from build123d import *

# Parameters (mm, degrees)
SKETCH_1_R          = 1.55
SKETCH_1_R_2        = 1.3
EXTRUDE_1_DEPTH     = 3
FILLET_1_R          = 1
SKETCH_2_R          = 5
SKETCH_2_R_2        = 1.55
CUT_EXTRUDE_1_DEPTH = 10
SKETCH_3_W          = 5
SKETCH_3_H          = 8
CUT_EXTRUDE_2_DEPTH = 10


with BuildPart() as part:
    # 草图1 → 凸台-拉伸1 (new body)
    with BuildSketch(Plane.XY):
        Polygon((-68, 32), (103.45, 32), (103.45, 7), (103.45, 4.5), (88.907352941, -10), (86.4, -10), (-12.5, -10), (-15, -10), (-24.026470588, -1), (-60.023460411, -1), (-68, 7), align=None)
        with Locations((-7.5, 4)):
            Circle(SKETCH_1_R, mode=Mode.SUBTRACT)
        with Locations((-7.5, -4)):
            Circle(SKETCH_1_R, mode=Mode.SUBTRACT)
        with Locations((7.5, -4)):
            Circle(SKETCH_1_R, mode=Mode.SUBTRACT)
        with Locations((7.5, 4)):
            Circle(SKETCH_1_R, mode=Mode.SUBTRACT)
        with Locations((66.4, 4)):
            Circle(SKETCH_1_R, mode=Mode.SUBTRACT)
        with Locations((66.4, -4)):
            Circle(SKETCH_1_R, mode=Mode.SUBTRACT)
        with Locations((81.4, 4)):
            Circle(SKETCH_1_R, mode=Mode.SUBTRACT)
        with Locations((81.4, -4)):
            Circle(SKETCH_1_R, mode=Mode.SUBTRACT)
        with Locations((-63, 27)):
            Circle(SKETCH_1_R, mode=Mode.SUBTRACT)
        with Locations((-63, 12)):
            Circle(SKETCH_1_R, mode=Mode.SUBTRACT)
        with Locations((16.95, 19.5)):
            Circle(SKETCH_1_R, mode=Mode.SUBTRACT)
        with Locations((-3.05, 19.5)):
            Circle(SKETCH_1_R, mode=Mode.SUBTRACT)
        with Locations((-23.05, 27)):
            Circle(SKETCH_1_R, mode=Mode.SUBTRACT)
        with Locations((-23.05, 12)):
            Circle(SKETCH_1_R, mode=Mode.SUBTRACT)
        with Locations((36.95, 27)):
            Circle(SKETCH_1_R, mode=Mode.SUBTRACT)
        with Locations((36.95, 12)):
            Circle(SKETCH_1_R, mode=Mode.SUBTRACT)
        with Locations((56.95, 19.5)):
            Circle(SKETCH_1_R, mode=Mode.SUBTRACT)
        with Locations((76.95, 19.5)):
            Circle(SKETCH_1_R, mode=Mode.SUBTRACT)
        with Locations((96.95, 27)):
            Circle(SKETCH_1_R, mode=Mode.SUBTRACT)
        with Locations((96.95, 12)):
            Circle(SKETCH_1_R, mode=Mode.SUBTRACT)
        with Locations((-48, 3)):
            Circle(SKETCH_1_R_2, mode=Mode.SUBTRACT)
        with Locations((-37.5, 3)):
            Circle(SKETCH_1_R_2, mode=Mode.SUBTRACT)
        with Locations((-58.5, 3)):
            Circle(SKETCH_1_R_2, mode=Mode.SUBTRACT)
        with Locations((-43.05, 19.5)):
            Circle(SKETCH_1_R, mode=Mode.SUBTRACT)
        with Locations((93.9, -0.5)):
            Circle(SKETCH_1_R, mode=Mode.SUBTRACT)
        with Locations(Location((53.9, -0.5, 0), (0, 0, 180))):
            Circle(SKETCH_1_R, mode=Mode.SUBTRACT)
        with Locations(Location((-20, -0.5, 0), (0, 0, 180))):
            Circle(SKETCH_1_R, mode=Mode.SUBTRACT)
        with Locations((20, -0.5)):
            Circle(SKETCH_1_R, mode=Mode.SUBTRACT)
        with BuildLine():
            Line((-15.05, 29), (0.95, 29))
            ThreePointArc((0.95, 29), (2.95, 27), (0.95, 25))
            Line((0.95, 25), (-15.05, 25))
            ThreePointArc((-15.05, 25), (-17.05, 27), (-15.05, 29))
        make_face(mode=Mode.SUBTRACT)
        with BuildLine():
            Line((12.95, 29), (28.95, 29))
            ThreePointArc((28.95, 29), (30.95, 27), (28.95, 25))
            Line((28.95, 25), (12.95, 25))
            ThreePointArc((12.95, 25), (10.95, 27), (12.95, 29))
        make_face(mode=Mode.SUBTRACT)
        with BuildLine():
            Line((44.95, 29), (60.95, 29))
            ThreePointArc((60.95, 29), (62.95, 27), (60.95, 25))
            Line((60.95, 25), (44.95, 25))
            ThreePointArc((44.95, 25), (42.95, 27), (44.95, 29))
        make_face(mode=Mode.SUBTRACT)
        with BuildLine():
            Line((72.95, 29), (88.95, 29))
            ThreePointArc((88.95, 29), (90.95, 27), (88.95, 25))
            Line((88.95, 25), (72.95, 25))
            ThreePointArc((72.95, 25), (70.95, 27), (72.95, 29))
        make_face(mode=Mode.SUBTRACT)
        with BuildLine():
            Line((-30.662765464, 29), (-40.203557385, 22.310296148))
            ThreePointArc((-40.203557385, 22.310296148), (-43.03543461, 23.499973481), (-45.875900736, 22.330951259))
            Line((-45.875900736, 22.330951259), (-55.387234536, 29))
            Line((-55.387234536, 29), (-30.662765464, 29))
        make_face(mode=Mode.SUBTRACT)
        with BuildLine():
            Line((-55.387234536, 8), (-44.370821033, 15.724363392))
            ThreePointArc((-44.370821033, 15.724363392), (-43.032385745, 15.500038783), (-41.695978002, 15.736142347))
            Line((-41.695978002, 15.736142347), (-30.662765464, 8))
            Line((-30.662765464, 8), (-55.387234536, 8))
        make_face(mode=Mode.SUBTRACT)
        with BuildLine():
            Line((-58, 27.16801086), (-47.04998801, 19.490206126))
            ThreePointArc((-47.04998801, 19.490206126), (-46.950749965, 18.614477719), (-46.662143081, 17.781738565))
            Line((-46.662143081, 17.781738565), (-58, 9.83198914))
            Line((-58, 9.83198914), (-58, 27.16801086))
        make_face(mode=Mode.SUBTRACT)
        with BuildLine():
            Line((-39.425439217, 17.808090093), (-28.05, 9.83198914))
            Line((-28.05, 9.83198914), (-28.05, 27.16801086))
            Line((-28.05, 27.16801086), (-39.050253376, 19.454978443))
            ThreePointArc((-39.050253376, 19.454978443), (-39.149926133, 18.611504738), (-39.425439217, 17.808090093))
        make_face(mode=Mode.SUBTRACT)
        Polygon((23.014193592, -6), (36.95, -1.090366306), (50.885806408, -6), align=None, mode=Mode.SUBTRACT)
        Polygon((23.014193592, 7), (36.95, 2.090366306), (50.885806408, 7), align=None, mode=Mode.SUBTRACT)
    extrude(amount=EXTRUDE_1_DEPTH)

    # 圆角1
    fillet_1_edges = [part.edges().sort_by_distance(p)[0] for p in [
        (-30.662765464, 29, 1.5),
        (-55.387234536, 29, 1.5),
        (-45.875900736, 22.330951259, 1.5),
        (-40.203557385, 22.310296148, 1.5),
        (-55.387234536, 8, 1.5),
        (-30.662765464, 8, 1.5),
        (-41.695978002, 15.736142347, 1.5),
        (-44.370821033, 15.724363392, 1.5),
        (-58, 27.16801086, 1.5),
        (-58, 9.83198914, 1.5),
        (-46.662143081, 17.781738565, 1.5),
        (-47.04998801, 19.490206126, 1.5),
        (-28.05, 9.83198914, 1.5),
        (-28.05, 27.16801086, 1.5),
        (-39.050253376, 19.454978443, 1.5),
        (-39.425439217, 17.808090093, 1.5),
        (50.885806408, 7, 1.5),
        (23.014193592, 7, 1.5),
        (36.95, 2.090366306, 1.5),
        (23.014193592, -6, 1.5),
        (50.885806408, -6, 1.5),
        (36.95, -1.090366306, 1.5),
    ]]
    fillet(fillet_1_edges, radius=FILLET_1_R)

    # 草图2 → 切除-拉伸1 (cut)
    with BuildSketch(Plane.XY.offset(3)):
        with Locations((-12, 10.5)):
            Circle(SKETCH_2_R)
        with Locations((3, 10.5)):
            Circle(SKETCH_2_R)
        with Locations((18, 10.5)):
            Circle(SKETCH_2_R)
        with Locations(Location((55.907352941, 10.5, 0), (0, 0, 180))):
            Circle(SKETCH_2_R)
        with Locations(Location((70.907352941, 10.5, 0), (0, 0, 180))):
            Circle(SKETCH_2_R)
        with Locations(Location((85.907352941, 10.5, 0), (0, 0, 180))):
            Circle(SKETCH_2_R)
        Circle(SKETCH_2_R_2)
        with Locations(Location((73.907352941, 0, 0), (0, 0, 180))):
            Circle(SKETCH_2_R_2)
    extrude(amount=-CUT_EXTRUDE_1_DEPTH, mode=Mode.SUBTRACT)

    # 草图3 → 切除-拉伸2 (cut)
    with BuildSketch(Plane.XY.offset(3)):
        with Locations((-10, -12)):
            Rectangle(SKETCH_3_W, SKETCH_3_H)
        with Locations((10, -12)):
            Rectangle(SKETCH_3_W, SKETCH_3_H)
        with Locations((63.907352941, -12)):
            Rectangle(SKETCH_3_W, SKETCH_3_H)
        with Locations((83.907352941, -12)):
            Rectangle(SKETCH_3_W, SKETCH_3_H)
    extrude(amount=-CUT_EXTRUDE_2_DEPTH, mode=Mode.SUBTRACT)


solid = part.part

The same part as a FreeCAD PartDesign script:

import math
import FreeCAD as App
import Part
import Sketcher

V = App.Vector
Q = App.Units.Quantity


def edges_at(feature, points):
    """Names of the edges that pass closest to the given points."""
    edges = feature.Shape.Edges
    near = lambda p: min(range(len(edges)), key=lambda i: edges[i].distToShape(Part.Vertex(*p))[0])
    return sorted({f"Edge{near(p) + 1}" for p in points})


def add_polygon(sketch, points):
    """Adds a closed chain of lines whose ends are joined by coincident constraints."""
    first, n = sketch.GeometryCount, len(points)
    for a, b in zip(points, points[1:] + points[:1]):
        sketch.addGeometry(Part.LineSegment(App.Vector(*a, 0), App.Vector(*b, 0)), False)
    for i in range(n):
        sketch.addConstraint(Sketcher.Constraint("Coincident", first + i, 2, first + (i + 1) % n, 1))

doc = App.newDocument("Part")
params = doc.addObject("Spreadsheet::Sheet", "Params")
for row, (alias, value) in enumerate([
    ("sketch1_radius", "2 mm"),
    ("sketch1_radius2", "4 mm"),
    ("sketch1_diameter", "3.1 mm"),
    ("sketch1_diameter2", "2.6 mm"),
    ("sketch1_width", "16 mm"),
    ("pad1_length", "3 mm"),
    ("fillet_radius", "1 mm"),
    ("sketch2_diameter", "10 mm"),
    ("sketch2_diameter2", "3.1 mm"),
    ("pocket1_length", "10 mm"),
    ("sketch3_width", "5 mm"),
    ("sketch3_height", "8 mm"),
    ("pocket2_length", "10 mm"),
], start=1):
    params.set(f"A{row}", alias)
    params.set(f"B{row}", "=" + value)
    params.setAlias(f"B{row}", alias)

body = doc.addObject("PartDesign::Body", "Body")

sketch1 = doc.addObject("Sketcher::SketchObject", "Sketch")
body.addObject(sketch1)
sketch1.AttachmentSupport = (doc.XY_Plane, [""])
sketch1.MapMode = "FlatFace"
add_polygon(sketch1, [(103.5, 32), (-68, 32), (-68, 7), (-60, -1), (-24, -1), (-15, -10), (88.9, -10), (103.5, 4.5)])
sketch1.addGeometry(Part.Circle(V(81.4, -4, 0), V(0, 0, 1), 1.6), False)
sketch1.addGeometry(Part.Circle(V(66.4, -4, 0), V(0, 0, 1), 1.6), False)
sketch1.addGeometry(Part.Circle(V(93.9, -0.5, 0), V(0, 0, 1), 1.6), False)
add_polygon(sketch1, [(23, -6), (37, -1.1), (50.9, -6)])
sketch1.addGeometry(Part.Circle(V(53.9, -0.5, 0), V(0, 0, 1), 1.6), False)
sketch1.addGeometry(Part.Circle(V(20, -0.5, 0), V(0, 0, 1), 1.6), False)
sketch1.addGeometry(Part.Circle(V(81.4, 4, 0), V(0, 0, 1), 1.6), False)
sketch1.addGeometry(Part.Circle(V(66.4, 4, 0), V(0, 0, 1), 1.6), False)
add_polygon(sketch1, [(23, 7), (50.9, 7), (37, 2.1)])
sketch1.addGeometry(Part.Circle(V(7.5, -4, 0), V(0, 0, 1), 1.6), False)
sketch1.addGeometry(Part.Circle(V(-7.5, -4, 0), V(0, 0, 1), 1.6), False)
sketch1.addGeometry(Part.Circle(V(-20, -0.5, 0), V(0, 0, 1), 1.6), False)
sketch1.addGeometry(Part.Circle(V(7.5, 4, 0), V(0, 0, 1), 1.6), False)
sketch1.addGeometry(Part.Circle(V(-7.5, 4, 0), V(0, 0, 1), 1.6), False)
sketch1.addGeometry(Part.Circle(V(-37.5, 3, 0), V(0, 0, 1), 1.3), False)
sketch1.addGeometry(Part.Circle(V(-48, 3, 0), V(0, 0, 1), 1.3), False)
sketch1.addGeometry(Part.Circle(V(-58.5, 3, 0), V(0, 0, 1), 1.3), False)
sketch1.addGeometry(Part.Circle(V(97, 12, 0), V(0, 0, 1), 1.6), False)
sketch1.addGeometry(Part.Circle(V(77, 19.5, 0), V(0, 0, 1), 1.6), False)
sketch1.addGeometry(Part.Circle(V(37, 12, 0), V(0, 0, 1), 1.6), False)
sketch1.addGeometry(Part.Circle(V(57, 19.5, 0), V(0, 0, 1), 1.6), False)
sketch1.addGeometry(Part.Circle(V(97, 27, 0), V(0, 0, 1), 1.6), False)
sketch1.addGeometry(Part.LineSegment(V(73, 29, 0), V(89, 29, 0)), False)
sketch1.addGeometry(Part.ArcOfCircle(Part.Circle(V(89, 27, 0), V(0, 0, 1), 2), math.radians(-90), math.radians(90)), False)
sketch1.addGeometry(Part.LineSegment(V(89, 25, 0), V(73, 25, 0)), False)
sketch1.addGeometry(Part.ArcOfCircle(Part.Circle(V(73, 27, 0), V(0, 0, 1), 2), math.radians(90), math.radians(270)), False)
sketch1.addGeometry(Part.LineSegment(V(45, 29, 0), V(61, 29, 0)), False)
sketch1.addGeometry(Part.ArcOfCircle(Part.Circle(V(61, 27, 0), V(0, 0, 1), 2), math.radians(-90), math.radians(90)), False)
sketch1.addGeometry(Part.LineSegment(V(61, 25, 0), V(45, 25, 0)), False)
sketch1.addGeometry(Part.ArcOfCircle(Part.Circle(V(45, 27, 0), V(0, 0, 1), 2), math.radians(90), math.radians(270)), False)
sketch1.addGeometry(Part.Circle(V(37, 27, 0), V(0, 0, 1), 1.6), False)
sketch1.addGeometry(Part.LineSegment(V(12.9, 29, 0), V(28.9, 29, 0)), False)
sketch1.addGeometry(Part.ArcOfCircle(Part.Circle(V(28.9, 27, 0), V(0, 0, 1), 2), math.radians(-90), math.radians(90)), False)
sketch1.addGeometry(Part.LineSegment(V(28.9, 25, 0), V(12.9, 25, 0)), False)
sketch1.addGeometry(Part.ArcOfCircle(Part.Circle(V(12.9, 27, 0), V(0, 0, 1), 2), math.radians(90), math.radians(270)), False)
sketch1.addGeometry(Part.Circle(V(-23.1, 12, 0), V(0, 0, 1), 1.6), False)
sketch1.addGeometry(Part.Circle(V(16.9, 19.5, 0), V(0, 0, 1), 1.6), False)
sketch1.addGeometry(Part.Circle(V(-3, 19.5, 0), V(0, 0, 1), 1.6), False)
sketch1.addGeometry(Part.LineSegment(V(-55.4, 8, 0), V(-44.4, 15.7, 0)), False)
sketch1.addGeometry(Part.ArcOfCircle(Part.Circle(V(-43, 19.5, 0), V(0, 0, 1), 4), math.radians(-109), math.radians(-70)), False)
sketch1.addGeometry(Part.LineSegment(V(-41.7, 15.7, 0), V(-30.7, 8, 0)), False)
sketch1.addGeometry(Part.LineSegment(V(-30.7, 8, 0), V(-55.4, 8, 0)), False)
sketch1.addGeometry(Part.Circle(V(-63, 12, 0), V(0, 0, 1), 1.6), False)
sketch1.addGeometry(Part.ArcOfCircle(Part.Circle(V(-43.1, 19.5, 0), V(0, 0, 1), 4), math.radians(-25), math.radians(-1)), False)
sketch1.addGeometry(Part.LineSegment(V(-39.1, 19.5, 0), V(-28.1, 27.2, 0)), False)
sketch1.addGeometry(Part.LineSegment(V(-28.1, 27.2, 0), V(-28.1, 9.8, 0)), False)
sketch1.addGeometry(Part.LineSegment(V(-28.1, 9.8, 0), V(-39.4, 17.8, 0)), False)
sketch1.addGeometry(Part.Circle(V(-43, 19.5, 0), V(0, 0, 1), 1.6), False)
sketch1.addGeometry(Part.LineSegment(V(-58, 27.2, 0), V(-47, 19.5, 0)), False)
sketch1.addGeometry(Part.ArcOfCircle(Part.Circle(V(-43.1, 19.5, 0), V(0, 0, 1), 4), math.radians(-180), math.radians(-155)), False)
sketch1.addGeometry(Part.LineSegment(V(-46.7, 17.8, 0), V(-58, 9.8, 0)), False)
sketch1.addGeometry(Part.LineSegment(V(-58, 9.8, 0), V(-58, 27.2, 0)), False)
sketch1.addGeometry(Part.LineSegment(V(-15.1, 29, 0), V(0.9, 29, 0)), False)
sketch1.addGeometry(Part.ArcOfCircle(Part.Circle(V(0.9, 27, 0), V(0, 0, 1), 2), math.radians(-90), math.radians(90)), False)
sketch1.addGeometry(Part.LineSegment(V(0.9, 25, 0), V(-15.1, 25, 0)), False)
sketch1.addGeometry(Part.ArcOfCircle(Part.Circle(V(-15.1, 27, 0), V(0, 0, 1), 2), math.radians(90), math.radians(270)), False)
sketch1.addGeometry(Part.Circle(V(-23.1, 27, 0), V(0, 0, 1), 1.6), False)
sketch1.addGeometry(Part.LineSegment(V(-30.7, 29, 0), V(-40.2, 22.3, 0)), False)
sketch1.addGeometry(Part.ArcOfCircle(Part.Circle(V(-43, 19.5, 0), V(0, 0, 1), 4), math.radians(45), math.radians(135)), False)
sketch1.addGeometry(Part.LineSegment(V(-45.9, 22.3, 0), V(-55.4, 29, 0)), False)
sketch1.addGeometry(Part.LineSegment(V(-55.4, 29, 0), V(-30.7, 29, 0)), False)
sketch1.addGeometry(Part.Circle(V(-63, 27, 0), V(0, 0, 1), 1.6), False)
sketch1.addConstraint(Sketcher.Constraint("Tangent", 34, 2, 35, 2))
sketch1.addConstraint(Sketcher.Constraint("Tangent", 35, 1, 36, 1))
sketch1.addConstraint(Sketcher.Constraint("Tangent", 36, 2, 37, 2))
sketch1.addConstraint(Sketcher.Constraint("Tangent", 37, 1, 34, 1))
sketch1.addConstraint(Sketcher.Constraint("Tangent", 38, 2, 39, 2))
sketch1.addConstraint(Sketcher.Constraint("Tangent", 39, 1, 40, 1))
sketch1.addConstraint(Sketcher.Constraint("Tangent", 40, 2, 41, 2))
sketch1.addConstraint(Sketcher.Constraint("Tangent", 41, 1, 38, 1))
sketch1.addConstraint(Sketcher.Constraint("Tangent", 43, 2, 44, 2))
sketch1.addConstraint(Sketcher.Constraint("Tangent", 44, 1, 45, 1))
sketch1.addConstraint(Sketcher.Constraint("Tangent", 45, 2, 46, 2))
sketch1.addConstraint(Sketcher.Constraint("Tangent", 46, 1, 43, 1))
sketch1.addConstraint(Sketcher.Constraint("Coincident", 50, 2, 51, 1))
sketch1.addConstraint(Sketcher.Constraint("Coincident", 51, 2, 52, 1))
sketch1.addConstraint(Sketcher.Constraint("Coincident", 52, 2, 53, 1))
sketch1.addConstraint(Sketcher.Constraint("Coincident", 53, 2, 50, 1))
sketch1.addConstraint(Sketcher.Constraint("Coincident", 55, 2, 56, 1))
sketch1.addConstraint(Sketcher.Constraint("Coincident", 56, 2, 57, 1))
sketch1.addConstraint(Sketcher.Constraint("Coincident", 57, 2, 58, 1))
sketch1.addConstraint(Sketcher.Constraint("Coincident", 58, 2, 55, 1))
sketch1.addConstraint(Sketcher.Constraint("Coincident", 60, 2, 61, 1))
sketch1.addConstraint(Sketcher.Constraint("Coincident", 61, 2, 62, 1))
sketch1.addConstraint(Sketcher.Constraint("Coincident", 62, 2, 63, 1))
sketch1.addConstraint(Sketcher.Constraint("Coincident", 63, 2, 60, 1))
sketch1.addConstraint(Sketcher.Constraint("Tangent", 64, 2, 65, 2))
sketch1.addConstraint(Sketcher.Constraint("Tangent", 65, 1, 66, 1))
sketch1.addConstraint(Sketcher.Constraint("Tangent", 66, 2, 67, 2))
sketch1.addConstraint(Sketcher.Constraint("Tangent", 67, 1, 64, 1))
sketch1.addConstraint(Sketcher.Constraint("Coincident", 69, 2, 70, 1))
sketch1.addConstraint(Sketcher.Constraint("Coincident", 70, 2, 71, 1))
sketch1.addConstraint(Sketcher.Constraint("Coincident", 71, 2, 72, 1))
sketch1.addConstraint(Sketcher.Constraint("Coincident", 72, 2, 69, 1))
sketch1.addConstraint(Sketcher.Constraint("Horizontal", 0))
sketch1.addConstraint(Sketcher.Constraint("Vertical", 1))
sketch1.addConstraint(Sketcher.Constraint("Horizontal", 3))
sketch1.addConstraint(Sketcher.Constraint("Horizontal", 5))
sketch1.addConstraint(Sketcher.Constraint("Vertical", 7))
sketch1.addConstraint(Sketcher.Constraint("Horizontal", 13))
sketch1.addConstraint(Sketcher.Constraint("Horizontal", 18))
sketch1.addConstraint(Sketcher.Constraint("Horizontal", 34))
sketch1.addConstraint(Sketcher.Constraint("Horizontal", 36))
sketch1.addConstraint(Sketcher.Constraint("Horizontal", 38))
sketch1.addConstraint(Sketcher.Constraint("Horizontal", 40))
sketch1.addConstraint(Sketcher.Constraint("Horizontal", 43))
sketch1.addConstraint(Sketcher.Constraint("Horizontal", 45))
sketch1.addConstraint(Sketcher.Constraint("Horizontal", 53))
sketch1.addConstraint(Sketcher.Constraint("Vertical", 57))
sketch1.addConstraint(Sketcher.Constraint("Vertical", 63))
sketch1.addConstraint(Sketcher.Constraint("Horizontal", 64))
sketch1.addConstraint(Sketcher.Constraint("Horizontal", 66))
sketch1.addConstraint(Sketcher.Constraint("Horizontal", 72))
sketch1.addConstraint(Sketcher.Constraint("Coincident", 55, 3, 51, 3))
sketch1.addConstraint(Sketcher.Constraint("Coincident", 59, 3, 51, 3))
sketch1.addConstraint(Sketcher.Constraint("Coincident", 61, 3, 51, 3))
sketch1.addConstraint(Sketcher.Constraint("Coincident", 70, 3, 51, 3))
sketch1.addConstraint(Sketcher.Constraint("Equal", 8, 9))
sketch1.addConstraint(Sketcher.Constraint("Equal", 9, 10))
sketch1.addConstraint(Sketcher.Constraint("Equal", 10, 14))
sketch1.addConstraint(Sketcher.Constraint("Equal", 14, 15))
sketch1.addConstraint(Sketcher.Constraint("Equal", 15, 16))
sketch1.addConstraint(Sketcher.Constraint("Equal", 16, 17))
sketch1.addConstraint(Sketcher.Constraint("Equal", 17, 21))
sketch1.addConstraint(Sketcher.Constraint("Equal", 21, 22))
sketch1.addConstraint(Sketcher.Constraint("Equal", 22, 23))
sketch1.addConstraint(Sketcher.Constraint("Equal", 23, 24))
sketch1.addConstraint(Sketcher.Constraint("Equal", 24, 25))
sketch1.addConstraint(Sketcher.Constraint("Equal", 26, 27))
sketch1.addConstraint(Sketcher.Constraint("Equal", 27, 28))
sketch1.addConstraint(Sketcher.Constraint("Equal", 25, 29))
sketch1.addConstraint(Sketcher.Constraint("Equal", 29, 30))
sketch1.addConstraint(Sketcher.Constraint("Equal", 30, 31))
sketch1.addConstraint(Sketcher.Constraint("Equal", 31, 32))
sketch1.addConstraint(Sketcher.Constraint("Equal", 32, 33))
sketch1.addConstraint(Sketcher.Constraint("Equal", 37, 39))
sketch1.addConstraint(Sketcher.Constraint("Equal", 33, 42))
sketch1.addConstraint(Sketcher.Constraint("Equal", 41, 44))
sketch1.addConstraint(Sketcher.Constraint("Equal", 42, 47))
sketch1.addConstraint(Sketcher.Constraint("Equal", 47, 48))
sketch1.addConstraint(Sketcher.Constraint("Equal", 48, 49))
sketch1.addConstraint(Sketcher.Constraint("Equal", 49, 54))
sketch1.addConstraint(Sketcher.Constraint("Equal", 51, 55))
sketch1.addConstraint(Sketcher.Constraint("Equal", 54, 59))
sketch1.addConstraint(Sketcher.Constraint("Equal", 55, 61))
sketch1.addConstraint(Sketcher.Constraint("Equal", 46, 65))
sketch1.addConstraint(Sketcher.Constraint("Equal", 59, 68))
sketch1.addConstraint(Sketcher.Constraint("Equal", 61, 70))
sketch1.addConstraint(Sketcher.Constraint("Equal", 68, 73))
sketch1.addConstraint(Sketcher.Constraint("Symmetric", 22, 3, 24, 3, -1, 1))
sketch1.addConstraint(Sketcher.Constraint("Symmetric", 21, 3, 25, 3, -1, 1))
sketch1.addConstraint(Sketcher.Constraint("Symmetric", 21, 3, 22, 3, -2))
sketch1.addConstraint(Sketcher.Constraint("Symmetric", 15, 3, 23, 3, -2))
sketch1.addConstraint(Sketcher.Constraint("Symmetric", 8, 3, 16, 3, -1))
sketch1.addConstraint(Sketcher.Constraint("Symmetric", 9, 3, 17, 3, -1))
sketch1.addConstraint(Sketcher.Constraint("Perpendicular", 2, 6))
sketch1.addConstraint(Sketcher.Constraint("Parallel", 11, 19))
sketch1.addConstraint(Sketcher.Constraint("Parallel", 12, 20))
sketch1.addConstraint(Sketcher.Constraint("Parallel", 50, 56))
sketch1.addConstraint(Sketcher.Constraint("Parallel", 52, 58))
sketch1.addConstraint(Sketcher.Constraint("Parallel", 58, 60))
sketch1.addConstraint(Sketcher.Constraint("Parallel", 56, 62))
sketch1.addConstraint(Sketcher.Constraint("Parallel", 62, 69))
sketch1.addConstraint(Sketcher.Constraint("Parallel", 60, 71))
sketch1.addConstraint(Sketcher.Constraint("Horizontal", 8, 3, 9, 3))
sketch1.addConstraint(Sketcher.Constraint("Horizontal", 10, 3, 14, 3))
sketch1.addConstraint(Sketcher.Constraint("Horizontal", 14, 3, 15, 3))
sketch1.addConstraint(Sketcher.Constraint("Horizontal", 9, 3, 21, 3))
sketch1.addConstraint(Sketcher.Constraint("Horizontal", 26, 3, 27, 3))
sketch1.addConstraint(Sketcher.Constraint("Horizontal", 27, 3, 28, 3))
sketch1.addConstraint(Sketcher.Constraint("Horizontal", 29, 3, 31, 3))
sketch1.addConstraint(Sketcher.Constraint("Horizontal", 30, 3, 32, 3))
sketch1.addConstraint(Sketcher.Constraint("Horizontal", 33, 3, 35, 3))
sketch1.addConstraint(Sketcher.Constraint("Horizontal", 37, 3, 39, 3))
sketch1.addConstraint(Sketcher.Constraint("Horizontal", 41, 3, 42, 3))
sketch1.addConstraint(Sketcher.Constraint("Horizontal", 42, 3, 44, 3))
sketch1.addConstraint(Sketcher.Constraint("Horizontal", 31, 3, 47, 3))
sketch1.addConstraint(Sketcher.Constraint("Horizontal", 32, 3, 48, 3))
sketch1.addConstraint(Sketcher.Constraint("Horizontal", 48, 3, 49, 3))
sketch1.addConstraint(Sketcher.Constraint("Horizontal", 49, 3, 51, 3))
sketch1.addConstraint(Sketcher.Constraint("Horizontal", 47, 3, 54, 3))
sketch1.addConstraint(Sketcher.Constraint("Horizontal", 46, 3, 65, 3))
sketch1.addConstraint(Sketcher.Constraint("Horizontal", 67, 3, 68, 3))
sketch1.addConstraint(Sketcher.Constraint("Horizontal", 68, 3, 73, 3))
sketch1.addConstraint(Sketcher.Constraint("Horizontal", 1, 2, 18, 2))
sketch1.addConstraint(Sketcher.Constraint("Horizontal", 57, 2, 62, 2))
sketch1.addConstraint(Sketcher.Constraint("Horizontal", 56, 2, 63, 2))
sketch1.addConstraint(Sketcher.Constraint("Horizontal", 67, 1, 71, 2))
sketch1.addConstraint(Sketcher.Constraint("Vertical", 29, 3, 33, 3))
sketch1.addConstraint(Sketcher.Constraint("Vertical", 31, 3, 42, 3))
sketch1.addConstraint(Sketcher.Constraint("Vertical", 47, 3, 68, 3))
sketch1.addConstraint(Sketcher.Constraint("Vertical", 54, 3, 73, 3))
sketch1.addConstraint(Sketcher.Constraint("Vertical", 42, 3, 11, 2))
sketch1.addConstraint(Sketcher.Constraint("Vertical", 12, 2, 18, 2))
sketch1.addConstraint(Sketcher.Constraint("Vertical", 11, 2, 19, 2))
sketch1.addConstraint(Sketcher.Constraint("Vertical", 13, 2, 20, 2))
sketch1.addConstraint(Sketcher.Constraint("Vertical", 53, 2, 71, 2))
sketch1.addConstraint(Sketcher.Constraint("Vertical", 52, 2, 72, 2))
sketch1.addConstraint(Sketcher.Constraint("Equal", 36, 38))
sketch1.addConstraint(Sketcher.Constraint("Equal", 40, 43))
sketch1.addConstraint(Sketcher.Constraint("Equal", 45, 64))
sketch1.addConstraint(Sketcher.Constraint("Radius", 35, Q("2 mm")))
sketch1.addConstraint(Sketcher.Constraint("Radius", 51, Q("4 mm")))
sketch1.addConstraint(Sketcher.Constraint("Diameter", 8, Q("3.1 mm")))
sketch1.addConstraint(Sketcher.Constraint("Diameter", 26, Q("2.6 mm")))
sketch1.addConstraint(Sketcher.Constraint("DistanceX", 34, 1, 34, 2, Q("16 mm")))
sketch1.addConstraint(Sketcher.Constraint("DistanceY", 1, 2, 1, 1, Q("25 mm")))
sketch1.addConstraint(Sketcher.Constraint("DistanceY", 7, 1, 7, 2, Q("27.5 mm")))
sketch1.addConstraint(Sketcher.Constraint("DistanceY", 8, 3, -1, 1, Q("4 mm")))
sketch1.addConstraint(Sketcher.Constraint("DistanceX", -1, 1, 15, 3, Q("20 mm")))
sketch1.addConstraint(Sketcher.Constraint("DistanceY", -1, 1, 26, 3, Q("3 mm")))
sketch1.addConstraint(Sketcher.Constraint("DistanceX", 27, 3, -1, 1, Q("48 mm")))
sketch1.addConstraint(Sketcher.Constraint("DistanceY", -1, 1, 29, 3, Q("12 mm")))
sketch1.addConstraint(Sketcher.Constraint("DistanceY", -1, 1, 33, 3, Q("27 mm")))
sketch1.addConstraint(Sketcher.Constraint("DistanceX", 54, 3, -1, 1, Q("63 mm")))
sketch1.addConstraint(Sketcher.Constraint("DistanceX", 0, 2, -1, 1, Q("68 mm")))
sketch1.addConstraint(Sketcher.Constraint("DistanceY", -1, 1, 0, 2, Q("32 mm")))
sketch1.addConstraint(Sketcher.Constraint("DistanceY", 2, 2, -1, 1, Q("1 mm")))
sketch1.addConstraint(Sketcher.Constraint("DistanceX", 4, 2, -1, 1, Q("15 mm")))
sketch1.addConstraint(Sketcher.Constraint("DistanceY", 4, 2, -1, 1, Q("10 mm")))
sketch1.addConstraint(Sketcher.Constraint("DistanceY", 12, 2, -1, 1, Q("6 mm")))
sketch1.addConstraint(Sketcher.Constraint("DistanceY", -1, 1, 52, 2, Q("8 mm")))
sketch1.addConstraint(Sketcher.Constraint("DistanceX", 62, 2, -1, 1, Q("58 mm")))
sketch1.addConstraint(Sketcher.Constraint("DistanceX", 0, 2, 0, 1, Q("171.45 mm")))
sketch1.addConstraint(Sketcher.Constraint("DistanceX", -1, 1, 8, 3, Q("81.4 mm")))
sketch1.addConstraint(Sketcher.Constraint("DistanceX", -1, 1, 9, 3, Q("66.4 mm")))
sketch1.addConstraint(Sketcher.Constraint("DistanceX", -1, 1, 10, 3, Q("93.9 mm")))
sketch1.addConstraint(Sketcher.Constraint("DistanceY", 10, 3, -1, 1, Q("0.5 mm")))
sketch1.addConstraint(Sketcher.Constraint("DistanceX", -1, 1, 14, 3, Q("53.9 mm")))
sketch1.addConstraint(Sketcher.Constraint("DistanceX", -1, 1, 21, 3, Q("7.5 mm")))
sketch1.addConstraint(Sketcher.Constraint("DistanceX", 26, 3, -1, 1, Q("37.5 mm")))
sketch1.addConstraint(Sketcher.Constraint("DistanceX", 28, 3, -1, 1, Q("58.5 mm")))
sketch1.addConstraint(Sketcher.Constraint("DistanceY", -1, 1, 30, 3, Q("19.5 mm")))
sketch1.addConstraint(Sketcher.Constraint("DistanceX", -1, 1, 29, 3, Q("96.95 mm")))
sketch1.addConstraint(Sketcher.Constraint("DistanceX", -1, 1, 30, 3, Q("76.95 mm")))
sketch1.addConstraint(Sketcher.Constraint("DistanceX", -1, 1, 31, 3, Q("36.95 mm")))
sketch1.addConstraint(Sketcher.Constraint("DistanceX", -1, 1, 32, 3, Q("56.95 mm")))
sketch1.addConstraint(Sketcher.Constraint("DistanceX", -1, 1, 35, 3, Q("88.95 mm")))
sketch1.addConstraint(Sketcher.Constraint("DistanceX", -1, 1, 39, 3, Q("60.95 mm")))
sketch1.addConstraint(Sketcher.Constraint("DistanceX", -1, 1, 44, 3, Q("28.95 mm")))
sketch1.addConstraint(Sketcher.Constraint("DistanceX", 47, 3, -1, 1, Q("23.05 mm")))
sketch1.addConstraint(Sketcher.Constraint("DistanceX", -1, 1, 48, 3, Q("16.95 mm")))
sketch1.addConstraint(Sketcher.Constraint("DistanceX", 49, 3, -1, 1, Q("3.05 mm")))
sketch1.addConstraint(Sketcher.Constraint("DistanceX", 51, 3, -1, 1, Q("43.05 mm")))
sketch1.addConstraint(Sketcher.Constraint("DistanceX", -1, 1, 65, 3, Q("0.95 mm")))
sketch1.addConstraint(Sketcher.Constraint("DistanceX", 56, 2, -1, 1, Q("28.05 mm")))
sketch1.addConstraint(Sketcher.Constraint("DistanceX", 3, 1, 3, 2, Q("35.99699 mm")))
sketch1.addConstraint(Sketcher.Constraint("DistanceX", 53, 2, 53, 1, Q("24.724469 mm")))
sketch1.addConstraint(Sketcher.Constraint("DistanceY", 57, 2, 57, 1, Q("17.336022 mm")))
sketch1.addConstraint(Sketcher.Constraint("DistanceX", 70, 2, -1, 1, Q("45.875901 mm")))
sketch1.addConstraint(Sketcher.Constraint("Distance", 2, Q("11.297132 mm")))
sketch1.addConstraint(Sketcher.Constraint("Distance", 52, Q("13.47515 mm")))
sketch1.addConstraint(Sketcher.Constraint("Distance", 58, Q("13.893121 mm")))
sketch1.addConstraint(Sketcher.Constraint("Distance", 62, Q("13.84722 mm")))
sketch1.addConstraint(Sketcher.Constraint("DistanceX", 13, 2, 13, 1, Q("27.871613 mm")))
sketch1.addConstraint(Sketcher.Constraint("Distance", 11, Q("14.775358 mm")))
sketch1.setExpression("Constraints[153]", "Params.sketch1_radius")
sketch1.setExpression("Constraints[154]", "Params.sketch1_radius2")
sketch1.setExpression("Constraints[155]", "Params.sketch1_diameter")
sketch1.setExpression("Constraints[156]", "Params.sketch1_diameter2")
sketch1.setExpression("Constraints[157]", "Params.sketch1_width")
pad1 = doc.addObject("PartDesign::Pad", "Pad")
body.addObject(pad1)
pad1.Profile = sketch1
pad1.setExpression("Length", "Params.pad1_length")
doc.recompute()

fillet = doc.addObject("PartDesign::Fillet", "Fillet")
body.addObject(fillet)
fillet.Base = (pad1, edges_at(pad1, [
    (-30.663, 29, 1.5),
    (-55.387, 29, 1.5),
    (-45.876, 22.331, 1.5),
    (-40.204, 22.31, 1.5),
    (-55.387, 8, 1.5),
    (-30.663, 8, 1.5),
    (-41.696, 15.736, 1.5),
    (-44.371, 15.724, 1.5),
    (-58, 27.168, 1.5),
    (-58, 9.832, 1.5),
    (-46.662, 17.782, 1.5),
    (-47.05, 19.49, 1.5),
    (-28.05, 9.832, 1.5),
    (-28.05, 27.168, 1.5),
    (-39.05, 19.455, 1.5),
    (-39.425, 17.808, 1.5),
    (50.886, 7, 1.5),
    (23.014, 7, 1.5),
    (36.95, 2.09, 1.5),
    (23.014, -6, 1.5),
    (50.886, -6, 1.5),
    (36.95, -1.09, 1.5),
]))
fillet.setExpression("Radius", "Params.fillet_radius")

sketch2 = doc.addObject("Sketcher::SketchObject", "Sketch001")
body.addObject(sketch2)
sketch2.AttachmentSupport = (doc.XY_Plane, [""])
sketch2.MapMode = "FlatFace"
sketch2.AttachmentOffset = App.Placement(V(0, 0, 3), App.Rotation())
sketch2.addGeometry(Part.Circle(V(-12, 10.5, 0), V(0, 0, 1), 5), False)
sketch2.addGeometry(Part.Circle(V(3, 10.5, 0), V(0, 0, 1), 5), False)
sketch2.addGeometry(Part.Circle(V(18, 10.5, 0), V(0, 0, 1), 5), False)
sketch2.addGeometry(Part.Circle(V(55.9, 10.5, 0), V(0, 0, 1), 5), False)
sketch2.addGeometry(Part.Circle(V(70.9, 10.5, 0), V(0, 0, 1), 5), False)
sketch2.addGeometry(Part.Circle(V(85.9, 10.5, 0), V(0, 0, 1), 5), False)
sketch2.addGeometry(Part.Circle(V(0, 0, 0), V(0, 0, 1), 1.6), False)
sketch2.addGeometry(Part.Circle(V(73.9, 0, 0), V(0, 0, 1), 1.6), False)
sketch2.addConstraint(Sketcher.Constraint("Coincident", 6, 3, -1, 1))
sketch2.addConstraint(Sketcher.Constraint("Equal", 0, 1))
sketch2.addConstraint(Sketcher.Constraint("Equal", 1, 2))
sketch2.addConstraint(Sketcher.Constraint("Equal", 2, 3))
sketch2.addConstraint(Sketcher.Constraint("Equal", 3, 4))
sketch2.addConstraint(Sketcher.Constraint("Equal", 4, 5))
sketch2.addConstraint(Sketcher.Constraint("Equal", 6, 7))
sketch2.addConstraint(Sketcher.Constraint("PointOnObject", 7, 3, -1))
sketch2.addConstraint(Sketcher.Constraint("Horizontal", 0, 3, 1, 3))
sketch2.addConstraint(Sketcher.Constraint("Horizontal", 1, 3, 2, 3))
sketch2.addConstraint(Sketcher.Constraint("Horizontal", 2, 3, 3, 3))
sketch2.addConstraint(Sketcher.Constraint("Horizontal", 3, 3, 4, 3))
sketch2.addConstraint(Sketcher.Constraint("Horizontal", 4, 3, 5, 3))
sketch2.addConstraint(Sketcher.Constraint("Diameter", 0, Q("10 mm")))
sketch2.addConstraint(Sketcher.Constraint("Diameter", 6, Q("3.1 mm")))
sketch2.addConstraint(Sketcher.Constraint("DistanceX", 0, 3, -1, 1, Q("12 mm")))
sketch2.addConstraint(Sketcher.Constraint("DistanceX", -1, 1, 1, 3, Q("3 mm")))
sketch2.addConstraint(Sketcher.Constraint("DistanceX", -1, 1, 2, 3, Q("18 mm")))
sketch2.addConstraint(Sketcher.Constraint("DistanceX", 3, 3, 4, 3, Q("15 mm")))
sketch2.addConstraint(Sketcher.Constraint("DistanceX", 4, 3, 5, 3, Q("15 mm")))
sketch2.addConstraint(Sketcher.Constraint("DistanceX", 4, 3, 7, 3, Q("3 mm")))
sketch2.addConstraint(Sketcher.Constraint("DistanceY", -1, 1, 0, 3, Q("10.5 mm")))
sketch2.addConstraint(Sketcher.Constraint("DistanceX", -1, 1, 3, 3, Q("55.907353 mm")))
sketch2.setExpression("Constraints[13]", "Params.sketch2_diameter")
sketch2.setExpression("Constraints[14]", "Params.sketch2_diameter2")
pocket1 = doc.addObject("PartDesign::Pocket", "Pocket")
body.addObject(pocket1)
pocket1.Profile = sketch2
pocket1.setExpression("Length", "Params.pocket1_length")

sketch3 = doc.addObject("Sketcher::SketchObject", "Sketch002")
body.addObject(sketch3)
sketch3.AttachmentSupport = (doc.XY_Plane, [""])
sketch3.MapMode = "FlatFace"
sketch3.AttachmentOffset = App.Placement(V(0, 0, 3), App.Rotation())
add_polygon(sketch3, [(-12, -8), (-12, -16), (-8, -16), (-8, -8)])
add_polygon(sketch3, [(8, -8), (8, -16), (12, -16), (12, -8)])
add_polygon(sketch3, [(61, -8), (61, -16), (66, -16), (66, -8)])
add_polygon(sketch3, [(81, -8), (81, -16), (86, -16), (86, -8)])
sketch3.addConstraint(Sketcher.Constraint("Vertical", 0))
sketch3.addConstraint(Sketcher.Constraint("Horizontal", 1))
sketch3.addConstraint(Sketcher.Constraint("Vertical", 2))
sketch3.addConstraint(Sketcher.Constraint("Horizontal", 3))
sketch3.addConstraint(Sketcher.Constraint("Vertical", 4))
sketch3.addConstraint(Sketcher.Constraint("Horizontal", 5))
sketch3.addConstraint(Sketcher.Constraint("Vertical", 6))
sketch3.addConstraint(Sketcher.Constraint("Horizontal", 7))
sketch3.addConstraint(Sketcher.Constraint("Vertical", 8))
sketch3.addConstraint(Sketcher.Constraint("Horizontal", 9))
sketch3.addConstraint(Sketcher.Constraint("Vertical", 10))
sketch3.addConstraint(Sketcher.Constraint("Horizontal", 11))
sketch3.addConstraint(Sketcher.Constraint("Vertical", 12))
sketch3.addConstraint(Sketcher.Constraint("Horizontal", 13))
sketch3.addConstraint(Sketcher.Constraint("Vertical", 14))
sketch3.addConstraint(Sketcher.Constraint("Horizontal", 15))
sketch3.addConstraint(Sketcher.Constraint("Symmetric", 1, 2, 4, 2, -2))
sketch3.addConstraint(Sketcher.Constraint("Symmetric", 3, 2, 6, 2, -2))
sketch3.addConstraint(Sketcher.Constraint("Horizontal", 5, 2, 8, 2))
sketch3.addConstraint(Sketcher.Constraint("Horizontal", 7, 2, 10, 2))
sketch3.addConstraint(Sketcher.Constraint("Horizontal", 9, 2, 12, 2))
sketch3.addConstraint(Sketcher.Constraint("Horizontal", 11, 2, 14, 2))
sketch3.addConstraint(Sketcher.Constraint("Equal", 7, 9))
sketch3.addConstraint(Sketcher.Constraint("Equal", 11, 13))
sketch3.addConstraint(Sketcher.Constraint("DistanceX", 1, 1, 1, 2, Q("5 mm")))
sketch3.addConstraint(Sketcher.Constraint("DistanceY", 0, 2, 0, 1, Q("8 mm")))
sketch3.addConstraint(Sketcher.Constraint("DistanceY", 0, 2, -1, 1, Q("16 mm")))
sketch3.addConstraint(Sketcher.Constraint("DistanceX", 1, 2, 4, 2, Q("15 mm")))
sketch3.addConstraint(Sketcher.Constraint("DistanceX", 9, 2, 12, 2, Q("15 mm")))
sketch3.addConstraint(Sketcher.Constraint("DistanceX", -1, 1, 8, 2, Q("61.407353 mm")))
sketch3.setExpression("Constraints[40]", "Params.sketch3_width")
sketch3.setExpression("Constraints[41]", "Params.sketch3_height")
pocket2 = doc.addObject("PartDesign::Pocket", "Pocket001")
body.addObject(pocket2)
pocket2.Profile = sketch3
pocket2.setExpression("Length", "Params.pocket2_length")

doc.recompute()
